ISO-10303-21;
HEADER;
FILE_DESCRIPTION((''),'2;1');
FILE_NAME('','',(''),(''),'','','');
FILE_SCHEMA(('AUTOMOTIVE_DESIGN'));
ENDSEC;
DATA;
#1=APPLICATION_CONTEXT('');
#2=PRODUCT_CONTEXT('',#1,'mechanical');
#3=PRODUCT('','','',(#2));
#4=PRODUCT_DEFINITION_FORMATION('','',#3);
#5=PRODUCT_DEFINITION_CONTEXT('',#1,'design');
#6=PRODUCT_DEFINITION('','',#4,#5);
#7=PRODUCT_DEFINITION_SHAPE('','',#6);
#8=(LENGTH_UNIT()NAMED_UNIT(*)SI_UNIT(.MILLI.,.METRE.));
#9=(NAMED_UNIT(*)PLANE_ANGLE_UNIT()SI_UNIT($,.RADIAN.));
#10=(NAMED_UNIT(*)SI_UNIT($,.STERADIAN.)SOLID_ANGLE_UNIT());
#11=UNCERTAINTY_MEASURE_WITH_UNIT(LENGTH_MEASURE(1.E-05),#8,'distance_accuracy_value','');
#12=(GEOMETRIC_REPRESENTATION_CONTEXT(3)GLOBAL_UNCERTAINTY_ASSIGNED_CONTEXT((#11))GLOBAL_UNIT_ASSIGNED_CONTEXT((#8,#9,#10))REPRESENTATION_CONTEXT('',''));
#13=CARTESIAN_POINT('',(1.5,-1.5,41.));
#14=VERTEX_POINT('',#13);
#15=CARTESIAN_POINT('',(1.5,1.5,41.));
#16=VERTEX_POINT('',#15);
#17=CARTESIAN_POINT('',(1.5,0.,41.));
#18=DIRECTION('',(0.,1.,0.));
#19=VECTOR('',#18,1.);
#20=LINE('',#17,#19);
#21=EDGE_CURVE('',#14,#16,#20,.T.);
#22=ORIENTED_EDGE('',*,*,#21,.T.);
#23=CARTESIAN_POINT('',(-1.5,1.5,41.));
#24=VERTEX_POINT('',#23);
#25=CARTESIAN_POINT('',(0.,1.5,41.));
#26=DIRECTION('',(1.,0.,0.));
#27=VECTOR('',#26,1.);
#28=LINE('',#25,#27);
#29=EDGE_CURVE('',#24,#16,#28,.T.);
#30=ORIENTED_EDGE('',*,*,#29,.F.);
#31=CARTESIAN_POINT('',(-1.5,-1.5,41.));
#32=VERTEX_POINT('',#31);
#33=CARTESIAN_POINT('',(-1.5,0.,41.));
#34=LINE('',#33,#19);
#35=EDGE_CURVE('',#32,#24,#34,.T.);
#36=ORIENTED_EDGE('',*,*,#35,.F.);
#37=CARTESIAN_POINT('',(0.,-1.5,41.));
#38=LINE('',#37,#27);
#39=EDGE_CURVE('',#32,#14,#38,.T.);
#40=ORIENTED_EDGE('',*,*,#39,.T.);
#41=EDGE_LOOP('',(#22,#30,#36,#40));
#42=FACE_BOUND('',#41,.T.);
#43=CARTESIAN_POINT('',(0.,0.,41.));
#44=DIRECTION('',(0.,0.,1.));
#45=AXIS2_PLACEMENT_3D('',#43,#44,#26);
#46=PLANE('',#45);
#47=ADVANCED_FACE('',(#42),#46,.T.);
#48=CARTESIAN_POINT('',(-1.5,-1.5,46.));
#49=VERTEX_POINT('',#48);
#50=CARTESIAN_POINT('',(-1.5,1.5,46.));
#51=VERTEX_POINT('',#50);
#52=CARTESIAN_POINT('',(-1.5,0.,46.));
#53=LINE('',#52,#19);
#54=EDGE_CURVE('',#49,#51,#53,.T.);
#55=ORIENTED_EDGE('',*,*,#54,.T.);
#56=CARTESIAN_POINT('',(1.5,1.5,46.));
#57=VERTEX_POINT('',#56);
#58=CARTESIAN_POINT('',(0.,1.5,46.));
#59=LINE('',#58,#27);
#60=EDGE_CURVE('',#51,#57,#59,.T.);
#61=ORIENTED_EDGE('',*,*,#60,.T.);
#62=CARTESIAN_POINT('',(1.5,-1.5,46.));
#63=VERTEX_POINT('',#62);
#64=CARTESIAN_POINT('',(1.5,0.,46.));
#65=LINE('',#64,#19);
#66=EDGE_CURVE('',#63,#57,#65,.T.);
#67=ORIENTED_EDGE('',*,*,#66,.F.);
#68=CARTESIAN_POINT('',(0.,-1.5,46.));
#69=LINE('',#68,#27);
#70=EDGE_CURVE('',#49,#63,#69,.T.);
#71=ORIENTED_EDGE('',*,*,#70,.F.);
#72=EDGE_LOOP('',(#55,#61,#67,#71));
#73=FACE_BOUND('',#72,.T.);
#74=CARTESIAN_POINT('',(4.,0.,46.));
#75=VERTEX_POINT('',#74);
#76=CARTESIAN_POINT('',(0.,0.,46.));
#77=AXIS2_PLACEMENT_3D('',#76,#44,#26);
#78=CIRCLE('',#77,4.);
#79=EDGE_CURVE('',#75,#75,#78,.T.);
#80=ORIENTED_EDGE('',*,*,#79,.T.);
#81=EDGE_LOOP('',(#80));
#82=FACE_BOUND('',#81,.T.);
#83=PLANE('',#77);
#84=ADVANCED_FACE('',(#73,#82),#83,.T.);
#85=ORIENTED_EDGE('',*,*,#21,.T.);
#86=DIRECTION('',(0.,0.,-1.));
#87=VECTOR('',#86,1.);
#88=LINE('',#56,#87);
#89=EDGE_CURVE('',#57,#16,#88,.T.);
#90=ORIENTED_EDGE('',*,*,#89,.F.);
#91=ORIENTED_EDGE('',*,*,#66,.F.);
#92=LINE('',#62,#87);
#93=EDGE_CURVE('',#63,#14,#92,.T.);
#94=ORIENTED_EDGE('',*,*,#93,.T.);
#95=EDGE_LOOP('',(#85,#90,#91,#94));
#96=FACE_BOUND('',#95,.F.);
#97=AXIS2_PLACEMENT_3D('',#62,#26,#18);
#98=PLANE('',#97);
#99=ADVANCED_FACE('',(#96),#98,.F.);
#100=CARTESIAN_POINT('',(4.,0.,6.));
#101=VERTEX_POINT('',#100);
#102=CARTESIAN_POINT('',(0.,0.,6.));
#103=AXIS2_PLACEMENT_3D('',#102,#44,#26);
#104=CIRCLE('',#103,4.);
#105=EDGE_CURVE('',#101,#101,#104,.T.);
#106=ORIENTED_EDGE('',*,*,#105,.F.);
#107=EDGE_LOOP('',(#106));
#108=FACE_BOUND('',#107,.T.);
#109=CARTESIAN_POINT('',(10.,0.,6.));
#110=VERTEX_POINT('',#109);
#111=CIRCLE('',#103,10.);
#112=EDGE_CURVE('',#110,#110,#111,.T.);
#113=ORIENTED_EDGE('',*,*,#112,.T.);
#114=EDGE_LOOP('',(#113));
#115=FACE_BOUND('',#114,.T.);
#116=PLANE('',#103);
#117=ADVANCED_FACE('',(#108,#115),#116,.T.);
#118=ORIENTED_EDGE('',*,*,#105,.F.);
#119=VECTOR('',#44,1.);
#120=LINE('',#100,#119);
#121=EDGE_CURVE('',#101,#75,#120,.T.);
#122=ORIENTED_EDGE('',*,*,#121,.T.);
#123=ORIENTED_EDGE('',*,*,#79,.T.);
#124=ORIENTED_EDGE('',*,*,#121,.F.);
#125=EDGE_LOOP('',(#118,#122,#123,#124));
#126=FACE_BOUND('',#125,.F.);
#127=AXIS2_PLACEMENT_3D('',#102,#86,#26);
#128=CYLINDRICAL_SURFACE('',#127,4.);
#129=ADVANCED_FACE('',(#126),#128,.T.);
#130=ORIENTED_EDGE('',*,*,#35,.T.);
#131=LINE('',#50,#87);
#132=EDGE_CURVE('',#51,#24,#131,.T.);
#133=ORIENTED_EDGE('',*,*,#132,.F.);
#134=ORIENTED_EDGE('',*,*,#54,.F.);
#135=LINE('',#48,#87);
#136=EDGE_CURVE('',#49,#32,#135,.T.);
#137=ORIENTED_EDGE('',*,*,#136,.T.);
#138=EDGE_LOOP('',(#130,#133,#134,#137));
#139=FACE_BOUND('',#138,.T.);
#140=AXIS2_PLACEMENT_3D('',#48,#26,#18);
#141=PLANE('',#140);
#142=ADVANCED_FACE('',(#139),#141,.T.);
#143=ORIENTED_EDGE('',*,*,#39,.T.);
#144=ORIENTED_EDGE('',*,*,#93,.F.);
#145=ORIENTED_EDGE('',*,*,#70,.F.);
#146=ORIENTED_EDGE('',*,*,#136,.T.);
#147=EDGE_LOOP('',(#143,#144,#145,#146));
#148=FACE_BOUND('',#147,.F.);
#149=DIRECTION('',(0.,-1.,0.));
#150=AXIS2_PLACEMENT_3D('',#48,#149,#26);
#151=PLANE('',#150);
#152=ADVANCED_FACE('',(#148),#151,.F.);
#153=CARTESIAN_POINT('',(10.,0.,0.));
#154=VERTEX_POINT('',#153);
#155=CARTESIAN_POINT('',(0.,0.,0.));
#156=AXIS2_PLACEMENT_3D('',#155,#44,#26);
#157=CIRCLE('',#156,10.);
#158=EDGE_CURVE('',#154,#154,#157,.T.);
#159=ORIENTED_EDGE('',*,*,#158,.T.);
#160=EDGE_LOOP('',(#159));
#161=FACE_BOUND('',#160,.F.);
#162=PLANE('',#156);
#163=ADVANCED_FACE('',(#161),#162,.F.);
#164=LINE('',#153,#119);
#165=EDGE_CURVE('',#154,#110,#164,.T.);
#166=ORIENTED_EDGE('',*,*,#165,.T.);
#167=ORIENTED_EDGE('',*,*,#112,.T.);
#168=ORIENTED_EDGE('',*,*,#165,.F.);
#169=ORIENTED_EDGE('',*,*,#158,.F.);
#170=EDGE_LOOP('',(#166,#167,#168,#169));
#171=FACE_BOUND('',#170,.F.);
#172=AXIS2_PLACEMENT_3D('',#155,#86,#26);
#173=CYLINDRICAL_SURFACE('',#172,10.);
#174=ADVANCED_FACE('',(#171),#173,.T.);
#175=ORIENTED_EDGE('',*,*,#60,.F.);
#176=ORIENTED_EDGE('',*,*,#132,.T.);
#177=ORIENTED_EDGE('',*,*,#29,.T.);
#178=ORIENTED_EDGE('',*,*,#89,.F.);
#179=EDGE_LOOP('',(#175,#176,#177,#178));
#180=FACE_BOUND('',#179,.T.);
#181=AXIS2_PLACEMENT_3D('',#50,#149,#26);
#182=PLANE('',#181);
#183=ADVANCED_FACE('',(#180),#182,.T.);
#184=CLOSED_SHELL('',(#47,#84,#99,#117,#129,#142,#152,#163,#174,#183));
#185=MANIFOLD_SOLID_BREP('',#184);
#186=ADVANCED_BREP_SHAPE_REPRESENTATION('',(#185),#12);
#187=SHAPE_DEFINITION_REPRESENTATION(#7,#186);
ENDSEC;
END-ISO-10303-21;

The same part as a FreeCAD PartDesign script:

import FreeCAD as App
import Part
import Sketcher

V = App.Vector
Q = App.Units.Quantity


def add_polygon(sketch, points):
    """Adds a closed chain of lines whose ends are joined by coincident constraints."""
    first, n = sketch.GeometryCount, len(points)
    for a, b in zip(points, points[1:] + points[:1]):
        sketch.addGeometry(Part.LineSegment(App.Vector(*a, 0), App.Vector(*b, 0)), False)
    for i in range(n):
        sketch.addConstraint(Sketcher.Constraint("Coincident", first + i, 2, first + (i + 1) % n, 1))

doc = App.newDocument("Part")
body = doc.addObject("PartDesign::Body", "Body")

sketch1 = body.newObject("Sketcher::SketchObject", "Sketch")
sketch1.AttachmentSupport = (doc.getObject("XY_Plane"), [""])
sketch1.MapMode = "FlatFace"
sketch1.addGeometry(Part.Circle(V(0, 0, 0), V(0, 0, 1), 10), False)
sketch1.addConstraint([
    Sketcher.Constraint("Coincident", 0, 3, -1, 1),
    Sketcher.Constraint("Diameter", 0, Q("20 mm")),
])
pad1 = body.newObject("PartDesign::Pad", "Pad")
pad1.Profile = sketch1
pad1.Length = 6

sketch2 = body.newObject("Sketcher::SketchObject", "Sketch001")
sketch2.AttachmentSupport = (doc.getObject("XY_Plane"), [""])
sketch2.MapMode = "FlatFace"
sketch2.AttachmentOffset = App.Placement(V(0, 0, 6), App.Rotation())
sketch2.addGeometry(Part.Circle(V(0, 0, 0), V(0, 0, 1), 4), False)
sketch2.addConstraint([
    Sketcher.Constraint("Coincident", 0, 3, -1, 1),
    Sketcher.Constraint("Diameter", 0, Q("8 mm")),
])
pad2 = body.newObject("PartDesign::Pad", "Pad001")
pad2.Profile = sketch2
pad2.Length = 40

sketch3 = body.newObject("Sketcher::SketchObject", "Sketch002")
sketch3.AttachmentSupport = (doc.getObject("XY_Plane"), [""])
sketch3.MapMode = "FlatFace"
sketch3.AttachmentOffset = App.Placement(V(0, 0, 46), App.Rotation())
add_polygon(sketch3, [(-1.5, 1.5), (-1.5, -1.5), (1.5, -1.5), (1.5, 1.5)])
sketch3.addConstraint([
    Sketcher.Constraint("Vertical", 0),
    Sketcher.Constraint("Horizontal", 1),
    Sketcher.Constraint("Vertical", 2),
    Sketcher.Constraint("Horizontal", 3),
    Sketcher.Constraint("Symmetric", 0, 2, 2, 2, -1, 1),
    Sketcher.Constraint("Equal", 3, 0),
    Sketcher.Constraint("DistanceX", 1, 1, 1, 2, Q("3 mm")),
])
pocket1 = body.newObject("PartDesign::Pocket", "Pocket")
pocket1.Profile = sketch3
pocket1.Length = 5

doc.recompute()
